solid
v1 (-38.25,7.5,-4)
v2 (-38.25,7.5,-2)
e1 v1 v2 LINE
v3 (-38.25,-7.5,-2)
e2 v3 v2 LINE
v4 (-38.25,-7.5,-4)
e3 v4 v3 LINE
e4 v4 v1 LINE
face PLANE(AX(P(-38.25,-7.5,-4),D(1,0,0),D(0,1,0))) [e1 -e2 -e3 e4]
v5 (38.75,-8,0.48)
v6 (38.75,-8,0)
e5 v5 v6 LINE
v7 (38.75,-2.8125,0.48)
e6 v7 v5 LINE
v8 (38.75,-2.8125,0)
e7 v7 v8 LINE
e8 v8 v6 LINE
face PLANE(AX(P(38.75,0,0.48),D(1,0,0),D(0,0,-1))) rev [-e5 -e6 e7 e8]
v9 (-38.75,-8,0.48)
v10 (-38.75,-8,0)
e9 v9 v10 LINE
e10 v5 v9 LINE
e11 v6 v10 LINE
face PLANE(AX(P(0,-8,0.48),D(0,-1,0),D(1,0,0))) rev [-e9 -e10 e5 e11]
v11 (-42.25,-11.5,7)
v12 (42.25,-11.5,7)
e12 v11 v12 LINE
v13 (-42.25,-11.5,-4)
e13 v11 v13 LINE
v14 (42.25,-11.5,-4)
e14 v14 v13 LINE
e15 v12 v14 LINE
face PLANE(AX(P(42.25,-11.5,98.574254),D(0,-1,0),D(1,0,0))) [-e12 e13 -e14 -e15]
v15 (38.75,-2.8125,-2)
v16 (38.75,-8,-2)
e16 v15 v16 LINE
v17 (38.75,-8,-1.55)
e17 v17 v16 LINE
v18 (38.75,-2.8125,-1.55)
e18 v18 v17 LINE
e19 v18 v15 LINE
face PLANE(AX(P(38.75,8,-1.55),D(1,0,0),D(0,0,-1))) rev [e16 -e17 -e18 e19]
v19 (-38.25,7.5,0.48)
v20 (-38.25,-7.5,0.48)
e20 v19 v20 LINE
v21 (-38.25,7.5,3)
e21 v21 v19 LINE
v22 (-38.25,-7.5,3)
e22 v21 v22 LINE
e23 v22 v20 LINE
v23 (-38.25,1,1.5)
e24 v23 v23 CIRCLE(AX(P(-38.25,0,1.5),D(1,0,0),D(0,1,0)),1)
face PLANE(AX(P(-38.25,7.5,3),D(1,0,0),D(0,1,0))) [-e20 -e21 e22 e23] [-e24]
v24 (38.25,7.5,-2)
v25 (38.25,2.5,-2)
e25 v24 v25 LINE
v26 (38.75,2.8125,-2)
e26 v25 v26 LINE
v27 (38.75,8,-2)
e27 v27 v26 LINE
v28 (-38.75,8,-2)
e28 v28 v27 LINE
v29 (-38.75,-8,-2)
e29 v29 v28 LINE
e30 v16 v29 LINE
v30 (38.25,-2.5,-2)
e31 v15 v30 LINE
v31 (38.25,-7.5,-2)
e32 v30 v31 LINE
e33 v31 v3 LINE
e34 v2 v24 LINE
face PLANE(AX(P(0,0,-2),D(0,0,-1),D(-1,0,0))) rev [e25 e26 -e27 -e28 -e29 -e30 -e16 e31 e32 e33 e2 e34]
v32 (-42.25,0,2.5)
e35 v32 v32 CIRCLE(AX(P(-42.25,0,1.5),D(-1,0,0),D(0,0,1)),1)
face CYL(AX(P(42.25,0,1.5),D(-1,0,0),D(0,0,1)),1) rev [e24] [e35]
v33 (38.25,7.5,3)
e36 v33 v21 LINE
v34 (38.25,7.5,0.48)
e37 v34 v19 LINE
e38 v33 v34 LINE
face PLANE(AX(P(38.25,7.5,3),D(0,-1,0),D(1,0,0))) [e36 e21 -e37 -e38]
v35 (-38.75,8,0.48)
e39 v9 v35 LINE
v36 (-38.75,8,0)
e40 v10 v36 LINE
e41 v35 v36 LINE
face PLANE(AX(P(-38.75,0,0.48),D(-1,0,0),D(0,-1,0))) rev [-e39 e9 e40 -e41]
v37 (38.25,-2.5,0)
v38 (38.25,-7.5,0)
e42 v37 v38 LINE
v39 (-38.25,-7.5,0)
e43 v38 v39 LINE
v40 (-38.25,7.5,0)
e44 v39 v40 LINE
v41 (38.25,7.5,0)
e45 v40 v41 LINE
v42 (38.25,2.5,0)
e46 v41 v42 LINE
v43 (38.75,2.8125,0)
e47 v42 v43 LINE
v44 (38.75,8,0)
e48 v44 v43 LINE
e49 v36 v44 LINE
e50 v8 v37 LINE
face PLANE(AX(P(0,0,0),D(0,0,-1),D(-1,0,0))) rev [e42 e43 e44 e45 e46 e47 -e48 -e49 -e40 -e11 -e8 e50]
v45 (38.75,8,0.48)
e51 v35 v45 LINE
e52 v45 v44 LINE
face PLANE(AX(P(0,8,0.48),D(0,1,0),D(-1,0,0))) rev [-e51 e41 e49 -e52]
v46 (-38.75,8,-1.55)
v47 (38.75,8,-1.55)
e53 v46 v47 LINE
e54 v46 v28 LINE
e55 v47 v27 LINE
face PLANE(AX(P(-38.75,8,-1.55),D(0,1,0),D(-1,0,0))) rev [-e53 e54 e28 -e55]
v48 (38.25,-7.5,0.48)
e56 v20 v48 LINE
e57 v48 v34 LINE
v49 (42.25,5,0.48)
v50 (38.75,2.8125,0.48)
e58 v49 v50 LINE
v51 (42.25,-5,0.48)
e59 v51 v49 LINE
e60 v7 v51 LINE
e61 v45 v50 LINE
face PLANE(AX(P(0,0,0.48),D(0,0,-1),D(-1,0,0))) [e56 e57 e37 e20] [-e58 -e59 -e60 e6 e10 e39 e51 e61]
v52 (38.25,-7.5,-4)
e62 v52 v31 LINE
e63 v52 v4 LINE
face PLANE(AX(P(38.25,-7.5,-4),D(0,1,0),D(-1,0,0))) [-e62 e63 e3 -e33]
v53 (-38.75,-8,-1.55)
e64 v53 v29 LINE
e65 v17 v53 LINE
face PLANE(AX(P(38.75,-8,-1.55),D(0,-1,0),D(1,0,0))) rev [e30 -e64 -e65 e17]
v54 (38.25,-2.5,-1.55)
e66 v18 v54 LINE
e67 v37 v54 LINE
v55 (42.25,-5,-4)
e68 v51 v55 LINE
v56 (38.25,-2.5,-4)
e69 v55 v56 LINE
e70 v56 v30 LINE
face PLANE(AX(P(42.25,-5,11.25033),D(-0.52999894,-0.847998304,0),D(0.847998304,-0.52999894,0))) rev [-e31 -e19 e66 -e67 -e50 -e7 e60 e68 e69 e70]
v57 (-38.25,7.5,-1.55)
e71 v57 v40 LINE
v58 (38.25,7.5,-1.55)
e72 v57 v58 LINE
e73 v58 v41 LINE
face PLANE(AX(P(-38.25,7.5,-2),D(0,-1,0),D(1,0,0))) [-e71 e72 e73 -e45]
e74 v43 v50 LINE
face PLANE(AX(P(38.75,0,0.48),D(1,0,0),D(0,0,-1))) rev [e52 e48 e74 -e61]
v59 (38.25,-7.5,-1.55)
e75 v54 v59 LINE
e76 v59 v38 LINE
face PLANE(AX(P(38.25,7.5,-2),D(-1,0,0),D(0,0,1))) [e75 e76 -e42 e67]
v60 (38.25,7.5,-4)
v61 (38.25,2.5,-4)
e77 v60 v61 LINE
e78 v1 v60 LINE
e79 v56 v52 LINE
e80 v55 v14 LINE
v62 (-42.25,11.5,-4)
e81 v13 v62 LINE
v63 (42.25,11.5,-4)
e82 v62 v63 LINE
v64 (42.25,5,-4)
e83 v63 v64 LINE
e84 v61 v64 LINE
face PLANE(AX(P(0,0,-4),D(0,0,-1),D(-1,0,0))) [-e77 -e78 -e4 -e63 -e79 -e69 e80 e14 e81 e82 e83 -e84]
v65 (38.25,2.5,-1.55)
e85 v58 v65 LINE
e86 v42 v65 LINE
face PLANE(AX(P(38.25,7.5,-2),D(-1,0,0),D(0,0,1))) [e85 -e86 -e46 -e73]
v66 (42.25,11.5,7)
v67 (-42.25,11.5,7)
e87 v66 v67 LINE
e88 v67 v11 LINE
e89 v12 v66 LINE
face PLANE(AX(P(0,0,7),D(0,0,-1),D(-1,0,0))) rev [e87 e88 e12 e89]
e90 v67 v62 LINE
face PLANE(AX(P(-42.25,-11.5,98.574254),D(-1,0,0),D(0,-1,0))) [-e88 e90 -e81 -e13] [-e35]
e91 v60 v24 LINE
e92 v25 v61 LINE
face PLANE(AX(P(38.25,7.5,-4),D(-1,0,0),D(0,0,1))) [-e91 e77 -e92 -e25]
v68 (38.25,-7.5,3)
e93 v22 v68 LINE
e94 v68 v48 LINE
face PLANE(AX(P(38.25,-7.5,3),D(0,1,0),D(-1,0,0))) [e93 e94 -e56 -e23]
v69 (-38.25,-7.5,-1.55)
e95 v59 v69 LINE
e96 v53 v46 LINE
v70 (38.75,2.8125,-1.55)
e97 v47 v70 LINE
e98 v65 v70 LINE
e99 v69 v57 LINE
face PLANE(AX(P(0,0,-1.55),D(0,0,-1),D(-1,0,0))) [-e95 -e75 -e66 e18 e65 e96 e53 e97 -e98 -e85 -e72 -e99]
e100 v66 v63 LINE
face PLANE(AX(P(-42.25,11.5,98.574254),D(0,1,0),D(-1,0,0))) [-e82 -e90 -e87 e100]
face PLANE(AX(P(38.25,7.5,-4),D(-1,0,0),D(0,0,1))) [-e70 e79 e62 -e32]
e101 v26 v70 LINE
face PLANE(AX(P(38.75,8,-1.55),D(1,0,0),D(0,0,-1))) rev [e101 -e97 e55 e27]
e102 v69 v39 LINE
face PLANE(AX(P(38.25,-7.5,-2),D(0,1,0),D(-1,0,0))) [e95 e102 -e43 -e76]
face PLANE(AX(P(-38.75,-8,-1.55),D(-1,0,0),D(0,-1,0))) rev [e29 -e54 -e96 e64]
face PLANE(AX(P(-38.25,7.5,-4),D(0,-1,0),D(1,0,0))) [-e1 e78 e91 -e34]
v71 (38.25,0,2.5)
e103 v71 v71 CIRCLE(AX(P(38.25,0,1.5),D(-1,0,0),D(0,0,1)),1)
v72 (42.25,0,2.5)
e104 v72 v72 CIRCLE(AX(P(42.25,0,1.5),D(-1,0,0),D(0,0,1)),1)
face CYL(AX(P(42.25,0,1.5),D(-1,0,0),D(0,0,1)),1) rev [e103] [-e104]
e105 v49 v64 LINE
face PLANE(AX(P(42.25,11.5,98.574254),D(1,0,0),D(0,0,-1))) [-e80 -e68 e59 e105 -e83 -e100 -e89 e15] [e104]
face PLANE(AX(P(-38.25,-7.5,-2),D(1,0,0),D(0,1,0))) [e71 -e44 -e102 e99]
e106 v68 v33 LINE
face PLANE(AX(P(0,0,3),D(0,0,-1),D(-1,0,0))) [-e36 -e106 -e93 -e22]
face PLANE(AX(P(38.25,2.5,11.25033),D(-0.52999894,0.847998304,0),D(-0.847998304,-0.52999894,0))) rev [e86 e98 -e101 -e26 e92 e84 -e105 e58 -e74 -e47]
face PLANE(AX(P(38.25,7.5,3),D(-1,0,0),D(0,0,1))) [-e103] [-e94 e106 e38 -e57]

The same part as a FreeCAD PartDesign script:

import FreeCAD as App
import Part
import Sketcher
Q = App.Units.Quantity


def add_polygon(sketch, points):
    """Adds a closed chain of lines whose ends are joined by coincident constraints."""
    first, n = sketch.GeometryCount, len(points)
    for a, b in zip(points, points[1:] + points[:1]):
        sketch.addGeometry(Part.LineSegment(App.Vector(*a, 0), App.Vector(*b, 0)), False)
    for i in range(n):
        sketch.addConstraint(Sketcher.Constraint("Coincident", first + i, 2, first + (i + 1) % n, 1))

doc = App.newDocument("Part")
params = doc.addObject("Spreadsheet::Sheet", "Params")
for row, (alias, value) in enumerate([
    ("sketch1_height", "15 mm"),
    ("sketch1_width", "76.5 mm"),
    ("pad1_length", "3 mm"),
    ("sketch2_diameter", "2 mm"),
    ("sketch3_height", "23 mm"),
    ("sketch3_width", "84.5 mm"),
    ("pad2_length", "7 mm"),
    ("sketch4_diameter", "2 mm"),
    ("sketch5_height", "16 mm"),
    ("sketch5_height2", "15 mm"),
    ("sketch5_width", "77.5 mm"),
    ("sketch5_width2", "76.5 mm"),
    ("pocket3_length", "0.48 mm"),
    ("sketch6_height", "23 mm"),
    ("sketch6_height2", "15 mm"),
    ("sketch6_width", "84.5 mm"),
    ("sketch6_width2", "76.5 mm"),
    ("pad3_length", "2 mm"),
    ("sketch7_height", "16 mm"),
    ("sketch7_height2", "15 mm"),
    ("sketch7_width", "77.5 mm"),
    ("sketch7_width2", "76.5 mm"),
    ("pocket4_length", "0.45 mm"),
    ("sketch8_height", "23 mm"),
    ("sketch8_height2", "15 mm"),
    ("sketch8_width", "84.5 mm"),
    ("sketch8_width2", "76.5 mm"),
    ("pad4_length", "2 mm"),
    ("sketch9_height", "5 mm"),
    ("sketch9_height2", "10 mm"),
    ("pocket5_length", "4.48 mm"),
], start=1):
    params.set(f"A{row}", alias)
    params.set(f"B{row}", "=" + value)
    params.setAlias(f"B{row}", alias)

body = doc.addObject("PartDesign::Body", "Body")

# Sketch on XY plane
sketch1 = body.newObject("Sketcher::SketchObject", "Sketch")
sketch1.AttachmentSupport = (doc.getObject("XY_Plane"), [""])
sketch1.MapMode = "FlatFace"
add_polygon(sketch1, [(-38.25, 7.5), (-38.25, -7.5), (38.25, -7.5), (38.25, 7.5)])  # lines 0-3
sketch1.addConstraint([
    Sketcher.Constraint("Vertical", 0),
    Sketcher.Constraint("Horizontal", 1),
    Sketcher.Constraint("Vertical", 2),
    Sketcher.Constraint("Horizontal", 3),
    Sketcher.Constraint("Symmetric", 0, 2, 2, 2, -1, 1),
    Sketcher.Constraint("DistanceY", 0, 2, 0, 1, Q("15 mm")),
    Sketcher.Constraint("DistanceX", 1, 1, 1, 2, Q("76.5 mm")),
])
sketch1.setExpression("Constraints[9]", "Params.sketch1_height")
sketch1.setExpression("Constraints[10]", "Params.sketch1_width")
pad1 = body.newObject("PartDesign::Pad", "Pad")
pad1.Profile = sketch1
pad1.setExpression("Length", "Params.pad1_length")

# Sketch on YZ plane
sketch2 = body.newObject("Sketcher::SketchObject", "Sketch001")
sketch2.AttachmentSupport = (doc.getObject("YZ_Plane"), [""])
sketch2.MapMode = "FlatFace"
sketch2.AttachmentOffset = App.Placement(App.Vector(0, 0, 38.25), App.Rotation())
sketch2.addGeometry(Part.Circle(App.Vector(0, 1.5, 0), App.Vector(0, 0, 1), 1), False)
sketch2.addConstraint([
    Sketcher.Constraint("PointOnObject", 0, 3, -2),
    Sketcher.Constraint("Diameter", 0, Q("2 mm")),
    Sketcher.Constraint("DistanceY", -1, 1, 0, 3, Q("1.5 mm")),
])
sketch2.setExpression("Constraints[1]", "Params.sketch2_diameter")
pocket1 = body.newObject("PartDesign::Pocket", "Pocket")
pocket1.Profile = sketch2
pocket1.Type = "ThroughAll"
body2 = doc.addObject("PartDesign::Body", "Body001")

# Sketch on XY plane
sketch3 = body2.newObject("Sketcher::SketchObject", "Sketch002")
sketch3.AttachmentSupport = (doc.getObject("XY_Plane001"), [""])
sketch3.MapMode = "FlatFace"
add_polygon(sketch3, [(42.25, 11.5), (42.25, -11.5), (-42.25, -11.5), (-42.25, 11.5)])  # lines 0-3
sketch3.addConstraint([
    Sketcher.Constraint("Vertical", 0),
    Sketcher.Constraint("Horizontal", 1),
    Sketcher.Constraint("Vertical", 2),
    Sketcher.Constraint("Horizontal", 3),
    Sketcher.Constraint("Symmetric", 0, 2, 2, 2, -1, 1),
    Sketcher.Constraint("DistanceY", 0, 2, 0, 1, Q("23 mm")),
    Sketcher.Constraint("DistanceX", 1, 2, 1, 1, Q("84.5 mm")),
])
sketch3.setExpression("Constraints[9]", "Params.sketch3_height")
sketch3.setExpression("Constraints[10]", "Params.sketch3_width")
pad2 = body2.newObject("PartDesign::Pad", "Pad001")
pad2.Profile = sketch3
pad2.setExpression("Length", "Params.pad2_length")
doc.recompute()

boolean = body2.newObject("PartDesign::Boolean", "Boolean")
boolean.Type = "Cut"
boolean.addObjects([body])

# Sketch on YZ plane
sketch4 = body2.newObject("Sketcher::SketchObject", "Sketch003")
sketch4.AttachmentSupport = (doc.getObject("YZ_Plane001"), [""])
sketch4.MapMode = "FlatFace"
sketch4.AttachmentOffset = App.Placement(App.Vector(0, 0, 38.25), App.Rotation())
sketch4.addGeometry(Part.Circle(App.Vector(0, 1.5, 0), App.Vector(0, 0, 1), 1), False)
sketch4.addConstraint([
    Sketcher.Constraint("PointOnObject", 0, 3, -2),
    Sketcher.Constraint("Diameter", 0, Q("2 mm")),
    Sketcher.Constraint("DistanceY", -1, 1, 0, 3, Q("1.5 mm")),
])
sketch4.setExpression("Constraints[1]", "Params.sketch4_diameter")
pocket2 = body2.newObject("PartDesign::Pocket", "Pocket001")
pocket2.Profile = sketch4
pocket2.Type = "ThroughAll"
pocket2.Midplane = True

# Sketch on XY plane
sketch5 = body2.newObject("Sketcher::SketchObject", "Sketch004")
sketch5.AttachmentSupport = (doc.getObject("XY_Plane001"), [""])
sketch5.MapMode = "FlatFace"
add_polygon(sketch5, [(38.75, 8), (38.75, -8), (-38.75, -8), (-38.75, 8)])  # lines 0-3
add_polygon(sketch5, [(-38.25, -7.5), (38.25, -7.5), (38.25, 7.5), (-38.25, 7.5)])  # lines 4-7
sketch5.addConstraint([
    Sketcher.Constraint("Vertical", 0),
    Sketcher.Constraint("Horizontal", 1),
    Sketcher.Constraint("Vertical", 2),
    Sketcher.Constraint("Horizontal", 3),
    Sketcher.Constraint("Horizontal", 4),
    Sketcher.Constraint("Vertical", 5),
    Sketcher.Constraint("Horizontal", 6),
    Sketcher.Constraint("Vertical", 7),
    Sketcher.Constraint("Symmetric", 0, 2, 2, 2, -1, 1),
    Sketcher.Constraint("Symmetric", 4, 2, 6, 2, -1, 1),
    Sketcher.Constraint("DistanceY", 0, 2, 0, 1, Q("16 mm")),
    Sketcher.Constraint("DistanceY", 5, 1, 5, 2, Q("15 mm")),
    Sketcher.Constraint("DistanceX", 1, 2, 1, 1, Q("77.5 mm")),
    Sketcher.Constraint("DistanceX", 4, 1, 4, 2, Q("76.5 mm")),
])
sketch5.setExpression("Constraints[18]", "Params.sketch5_height")
sketch5.setExpression("Constraints[19]", "Params.sketch5_height2")
sketch5.setExpression("Constraints[20]", "Params.sketch5_width")
sketch5.setExpression("Constraints[21]", "Params.sketch5_width2")
pocket3 = body2.newObject("PartDesign::Pocket", "Pocket002")
pocket3.Profile = sketch5
pocket3.setExpression("Length", "Params.pocket3_length")
pocket3.Reversed = True

# Sketch on XY plane
sketch6 = body2.newObject("Sketcher::SketchObject", "Sketch005")
sketch6.AttachmentSupport = (doc.getObject("XY_Plane001"), [""])
sketch6.MapMode = "FlatFace"
add_polygon(sketch6, [(42.25, 11.5), (42.25, -11.5), (-42.25, -11.5), (-42.25, 11.5)])  # lines 0-3
add_polygon(sketch6, [(-38.25, -7.5), (38.25, -7.5), (38.25, 7.5), (-38.25, 7.5)])  # lines 4-7
sketch6.addConstraint([
    Sketcher.Constraint("Vertical", 0),
    Sketcher.Constraint("Horizontal", 1),
    Sketcher.Constraint("Vertical", 2),
    Sketcher.Constraint("Horizontal", 3),
    Sketcher.Constraint("Horizontal", 4),
    Sketcher.Constraint("Vertical", 5),
    Sketcher.Constraint("Horizontal", 6),
    Sketcher.Constraint("Vertical", 7),
    Sketcher.Constraint("Symmetric", 0, 2, 2, 2, -1, 1),
    Sketcher.Constraint("Symmetric", 4, 2, 6, 2, -1, 1),
    Sketcher.Constraint("DistanceY", 0, 2, 0, 1, Q("23 mm")),
    Sketcher.Constraint("DistanceY", 5, 1, 5, 2, Q("15 mm")),
    Sketcher.Constraint("DistanceX", 1, 2, 1, 1, Q("84.5 mm")),
    Sketcher.Constraint("DistanceX", 4, 1, 4, 2, Q("76.5 mm")),
])
sketch6.setExpression("Constraints[18]", "Params.sketch6_height")
sketch6.setExpression("Constraints[19]", "Params.sketch6_height2")
sketch6.setExpression("Constraints[20]", "Params.sketch6_width")
sketch6.setExpression("Constraints[21]", "Params.sketch6_width2")
pad3 = body2.newObject("PartDesign::Pad", "Pad002")
pad3.Profile = sketch6
pad3.setExpression("Length", "Params.pad3_length")
pad3.Reversed = True

# Sketch on XY plane
sketch7 = body2.newObject("Sketcher::SketchObject", "Sketch006")
sketch7.AttachmentSupport = (doc.getObject("XY_Plane001"), [""])
sketch7.MapMode = "FlatFace"
sketch7.AttachmentOffset = App.Placement(App.Vector(0, 0, -2), App.Rotation())
add_polygon(sketch7, [(38.75, 8), (38.75, -8), (-38.75, -8), (-38.75, 8)])  # lines 0-3
add_polygon(sketch7, [(-38.25, -7.5), (38.25, -7.5), (38.25, 7.5), (-38.25, 7.5)])  # lines 4-7
sketch7.addConstraint([
    Sketcher.Constraint("Vertical", 0),
    Sketcher.Constraint("Horizontal", 1),
    Sketcher.Constraint("Vertical", 2),
    Sketcher.Constraint("Horizontal", 3),
    Sketcher.Constraint("Horizontal", 4),
    Sketcher.Constraint("Vertical", 5),
    Sketcher.Constraint("Horizontal", 6),
    Sketcher.Constraint("Vertical", 7),
    Sketcher.Constraint("Symmetric", 0, 2, 2, 2, -1, 1),
    Sketcher.Constraint("Symmetric", 4, 2, 6, 2, -1, 1),
    Sketcher.Constraint("DistanceY", 0, 2, 0, 1, Q("16 mm")),
    Sketcher.Constraint("DistanceY", 5, 1, 5, 2, Q("15 mm")),
    Sketcher.Constraint("DistanceX", 1, 2, 1, 1, Q("77.5 mm")),
    Sketcher.Constraint("DistanceX", 4, 1, 4, 2, Q("76.5 mm")),
])
sketch7.setExpression("Constraints[18]", "Params.sketch7_height")
sketch7.setExpression("Constraints[19]", "Params.sketch7_height2")
sketch7.setExpression("Constraints[20]", "Params.sketch7_width")
sketch7.setExpression("Constraints[21]", "Params.sketch7_width2")
pocket4 = body2.newObject("PartDesign::Pocket", "Pocket003")
pocket4.Profile = sketch7
pocket4.setExpression("Length", "Params.pocket4_length")
pocket4.Reversed = True

# Sketch on XY plane
sketch8 = body2.newObject("Sketcher::SketchObject", "Sketch007")
sketch8.AttachmentSupport = (doc.getObject("XY_Plane001"), [""])
sketch8.MapMode = "FlatFace"
sketch8.AttachmentOffset = App.Placement(App.Vector(0, 0, -2), App.Rotation())
add_polygon(sketch8, [(42.25, 11.5), (42.25, -11.5), (-42.25, -11.5), (-42.25, 11.5)])  # lines 0-3
add_polygon(sketch8, [(-38.25, -7.5), (38.25, -7.5), (38.25, 7.5), (-38.25, 7.5)])  # lines 4-7
sketch8.addConstraint([
    Sketcher.Constraint("Vertical", 0),
    Sketcher.Constraint("Horizontal", 1),
    Sketcher.Constraint("Vertical", 2),
    Sketcher.Constraint("Horizontal", 3),
    Sketcher.Constraint("Horizontal", 4),
    Sketcher.Constraint("Vertical", 5),
    Sketcher.Constraint("Horizontal", 6),
    Sketcher.Constraint("Vertical", 7),
    Sketcher.Constraint("Symmetric", 0, 2, 2, 2, -1, 1),
    Sketcher.Constraint("Symmetric", 4, 2, 6, 2, -1, 1),
    Sketcher.Constraint("DistanceY", 0, 2, 0, 1, Q("23 mm")),
    Sketcher.Constraint("DistanceY", 5, 1, 5, 2, Q("15 mm")),
    Sketcher.Constraint("DistanceX", 1, 2, 1, 1, Q("84.5 mm")),
    Sketcher.Constraint("DistanceX", 4, 1, 4, 2, Q("76.5 mm")),
])
sketch8.setExpression("Constraints[18]", "Params.sketch8_height")
sketch8.setExpression("Constraints[19]", "Params.sketch8_height2")
sketch8.setExpression("Constraints[20]", "Params.sketch8_width")
sketch8.setExpression("Constraints[21]", "Params.sketch8_width2")
pad4 = body2.newObject("PartDesign::Pad", "Pad003")
pad4.Profile = sketch8
pad4.setExpression("Length", "Params.pad4_length")
pad4.Reversed = True

# Sketch on XY plane
sketch9 = body2.newObject("Sketcher::SketchObject", "Sketch008")
sketch9.AttachmentSupport = (doc.getObject("XY_Plane001"), [""])
sketch9.MapMode = "FlatFace"
sketch9.AttachmentOffset = App.Placement(App.Vector(0, 0, 0.48), App.Rotation())
add_polygon(sketch9, [(42.25, -5), (38.25, -2.5), (38.25, 2.5), (42.25, 5)])  # lines 0-3
sketch9.addConstraint([
    Sketcher.Constraint("Vertical", 1),
    Sketcher.Constraint("Vertical", 3),
    Sketcher.Constraint("Equal", 0, 2),
    Sketcher.Constraint("DistanceY", 1, 1, 1, 2, Q("5 mm")),
    Sketcher.Constraint("DistanceY", 3, 2, 3, 1, Q("10 mm")),
    Sketcher.Constraint("DistanceY", -1, 1, 2, 2, Q("5 mm")),
    Sketcher.Constraint("DistanceX", 1, 2, 2, 2, Q("4 mm")),
    Sketcher.Constraint("DistanceX", -1, 1, 0, 2, Q("38.25 mm")),
])
sketch9.setExpression("Constraints[7]", "Params.sketch9_height")
sketch9.setExpression("Constraints[8]", "Params.sketch9_height2")
pocket5 = body2.newObject("PartDesign::Pocket", "Pocket004")
pocket5.Profile = sketch9
pocket5.setExpression("Length", "Params.pocket5_length")

doc.recompute()
